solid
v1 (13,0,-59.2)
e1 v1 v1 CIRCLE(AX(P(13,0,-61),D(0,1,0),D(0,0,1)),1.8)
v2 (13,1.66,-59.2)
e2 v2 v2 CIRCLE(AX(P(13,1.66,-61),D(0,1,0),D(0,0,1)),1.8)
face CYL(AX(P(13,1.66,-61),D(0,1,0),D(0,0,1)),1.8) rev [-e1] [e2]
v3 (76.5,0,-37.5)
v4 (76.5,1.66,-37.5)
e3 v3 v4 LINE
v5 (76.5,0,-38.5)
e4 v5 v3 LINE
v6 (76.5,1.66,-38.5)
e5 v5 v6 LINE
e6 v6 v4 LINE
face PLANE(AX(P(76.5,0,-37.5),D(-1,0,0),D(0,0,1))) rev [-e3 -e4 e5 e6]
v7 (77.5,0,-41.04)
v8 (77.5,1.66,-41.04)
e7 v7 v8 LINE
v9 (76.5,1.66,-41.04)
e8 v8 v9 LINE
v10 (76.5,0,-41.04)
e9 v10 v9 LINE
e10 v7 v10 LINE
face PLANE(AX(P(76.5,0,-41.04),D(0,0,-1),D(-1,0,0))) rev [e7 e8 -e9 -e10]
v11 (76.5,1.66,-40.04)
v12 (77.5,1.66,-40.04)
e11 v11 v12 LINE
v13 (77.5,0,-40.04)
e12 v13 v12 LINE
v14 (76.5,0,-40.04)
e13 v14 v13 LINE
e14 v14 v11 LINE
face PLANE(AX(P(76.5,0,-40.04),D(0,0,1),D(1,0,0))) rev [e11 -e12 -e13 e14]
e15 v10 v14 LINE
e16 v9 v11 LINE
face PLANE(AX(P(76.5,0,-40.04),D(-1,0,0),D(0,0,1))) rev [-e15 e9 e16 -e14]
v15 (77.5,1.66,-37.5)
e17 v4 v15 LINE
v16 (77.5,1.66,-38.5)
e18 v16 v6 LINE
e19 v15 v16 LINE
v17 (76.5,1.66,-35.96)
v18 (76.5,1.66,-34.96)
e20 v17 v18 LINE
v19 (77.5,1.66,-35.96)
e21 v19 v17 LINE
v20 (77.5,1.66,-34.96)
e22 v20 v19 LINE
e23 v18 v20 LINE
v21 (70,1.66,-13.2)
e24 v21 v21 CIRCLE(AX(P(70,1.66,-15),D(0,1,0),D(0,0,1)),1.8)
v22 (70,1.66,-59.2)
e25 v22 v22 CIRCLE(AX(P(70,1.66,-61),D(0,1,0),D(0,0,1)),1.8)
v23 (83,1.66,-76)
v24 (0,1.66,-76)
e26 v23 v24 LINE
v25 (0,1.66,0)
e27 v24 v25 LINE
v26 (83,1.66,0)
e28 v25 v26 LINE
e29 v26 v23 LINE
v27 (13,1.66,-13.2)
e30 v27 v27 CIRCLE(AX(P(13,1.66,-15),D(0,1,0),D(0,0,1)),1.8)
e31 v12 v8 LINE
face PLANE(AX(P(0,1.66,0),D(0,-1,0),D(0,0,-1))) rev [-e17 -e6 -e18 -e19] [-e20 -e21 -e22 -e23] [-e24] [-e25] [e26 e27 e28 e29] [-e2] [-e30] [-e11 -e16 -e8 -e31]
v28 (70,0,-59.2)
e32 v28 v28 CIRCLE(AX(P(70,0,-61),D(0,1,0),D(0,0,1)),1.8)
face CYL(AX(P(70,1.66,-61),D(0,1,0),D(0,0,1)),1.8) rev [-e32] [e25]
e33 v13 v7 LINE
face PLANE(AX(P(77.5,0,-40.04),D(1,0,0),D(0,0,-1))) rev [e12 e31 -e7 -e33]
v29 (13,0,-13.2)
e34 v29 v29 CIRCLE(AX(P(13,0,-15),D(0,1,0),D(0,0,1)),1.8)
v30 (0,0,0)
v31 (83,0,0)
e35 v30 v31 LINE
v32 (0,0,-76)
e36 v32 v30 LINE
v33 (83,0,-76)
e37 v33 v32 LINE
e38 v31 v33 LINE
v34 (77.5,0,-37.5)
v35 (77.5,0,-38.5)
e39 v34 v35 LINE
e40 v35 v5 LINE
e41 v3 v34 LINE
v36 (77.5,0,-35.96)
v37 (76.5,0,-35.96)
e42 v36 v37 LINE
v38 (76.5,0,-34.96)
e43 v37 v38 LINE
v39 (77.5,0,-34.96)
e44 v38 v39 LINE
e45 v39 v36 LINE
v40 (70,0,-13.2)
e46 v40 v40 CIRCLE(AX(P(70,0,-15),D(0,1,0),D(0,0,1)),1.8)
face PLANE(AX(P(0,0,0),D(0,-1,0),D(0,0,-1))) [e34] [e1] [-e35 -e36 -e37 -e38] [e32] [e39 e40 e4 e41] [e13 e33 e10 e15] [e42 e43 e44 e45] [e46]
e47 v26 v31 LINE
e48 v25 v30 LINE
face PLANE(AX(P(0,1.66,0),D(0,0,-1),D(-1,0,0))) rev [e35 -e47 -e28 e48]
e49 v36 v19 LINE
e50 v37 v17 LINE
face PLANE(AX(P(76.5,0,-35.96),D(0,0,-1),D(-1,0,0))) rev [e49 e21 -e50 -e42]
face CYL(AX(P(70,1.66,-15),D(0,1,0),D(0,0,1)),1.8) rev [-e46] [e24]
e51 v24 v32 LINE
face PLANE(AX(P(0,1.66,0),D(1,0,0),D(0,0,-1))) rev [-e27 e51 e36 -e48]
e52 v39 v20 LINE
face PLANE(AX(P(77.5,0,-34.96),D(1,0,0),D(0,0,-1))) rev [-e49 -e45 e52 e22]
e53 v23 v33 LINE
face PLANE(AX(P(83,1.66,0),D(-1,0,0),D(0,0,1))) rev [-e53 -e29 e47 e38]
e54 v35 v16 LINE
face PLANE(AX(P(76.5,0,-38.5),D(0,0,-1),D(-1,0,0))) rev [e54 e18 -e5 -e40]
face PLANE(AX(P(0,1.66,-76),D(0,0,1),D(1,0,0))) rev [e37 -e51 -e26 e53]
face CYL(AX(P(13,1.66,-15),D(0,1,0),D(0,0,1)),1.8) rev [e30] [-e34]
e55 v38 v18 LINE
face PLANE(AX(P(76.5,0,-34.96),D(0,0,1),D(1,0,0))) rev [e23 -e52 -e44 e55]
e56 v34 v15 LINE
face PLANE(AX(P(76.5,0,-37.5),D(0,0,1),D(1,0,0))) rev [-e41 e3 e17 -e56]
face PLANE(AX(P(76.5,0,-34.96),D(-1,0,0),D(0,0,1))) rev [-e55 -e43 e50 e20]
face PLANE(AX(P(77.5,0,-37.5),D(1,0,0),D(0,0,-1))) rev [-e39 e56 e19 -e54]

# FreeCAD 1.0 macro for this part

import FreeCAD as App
import Part
import Sketcher
from FreeCAD import Vector


def add_polygon(sketch, points):
    """Adds a closed chain of lines whose ends are joined by coincident constraints."""
    first, n = sketch.GeometryCount, len(points)
    for a, b in zip(points, points[1:] + points[:1]):
        sketch.addGeometry(Part.LineSegment(App.Vector(*a, 0), App.Vector(*b, 0)), False)
    for i in range(n):
        sketch.addConstraint(Sketcher.Constraint("Coincident", first + i, 2, first + (i + 1) % n, 1))

doc = App.newDocument("Part")
params = doc.addObject("Spreadsheet::Sheet", "Params")
for row, (alias, value) in enumerate([
    ("sketch1_width", "83 mm"),
    ("sketch1_height", "76 mm"),
    ("pad1_length", "1.66 mm"),
    ("sketch2_width", "1 mm"),
    ("sketch3_diameter", "3.6 mm"),
    ("hole_diameter", "3.6 mm"),
], start=1):
    params.set(f"A{row}", alias)
    params.set(f"B{row}", "=" + value)
    params.setAlias(f"B{row}", alias)

body = doc.addObject("PartDesign::Body", "Body")

# Sketch on XZ plane
sketch1 = doc.addObject("Sketcher::SketchObject", "Sketch")
body.addObject(sketch1)
sketch1.AttachmentSupport = (doc.XZ_Plane, [""])
sketch1.MapMode = "FlatFace"
add_polygon(sketch1, [(0, -76), (0, 0), (83, 0), (83, -76)])  # lines 0-3
sketch1.addConstraint([
    Sketcher.Constraint("Vertical", 0),
    Sketcher.Constraint("Horizontal", 1),
    Sketcher.Constraint("Vertical", 2),
    Sketcher.Constraint("Horizontal", 3),
    Sketcher.Constraint("Coincident", 0, 2, -1, 1),
    Sketcher.Constraint("DistanceX", 1, 1, 1, 2, 83.0),
    Sketcher.Constraint("DistanceY", 0, 1, 0, 2, 76.0),
])
sketch1.setExpression("Constraints[9]", "Params.sketch1_width")
sketch1.setExpression("Constraints[10]", "Params.sketch1_height")
pad1 = doc.addObject("PartDesign::Pad", "Pad")
body.addObject(pad1)
pad1.Profile = sketch1
pad1.setExpression("Length", "Params.pad1_length")
pad1.Reversed = True

# Sketch on XZ plane
sketch2 = doc.addObject("Sketcher::SketchObject", "Sketch001")
body.addObject(sketch2)
sketch2.AttachmentSupport = (doc.XZ_Plane, [""])
sketch2.MapMode = "FlatFace"
sketch2.AttachmentOffset = App.Placement(Vector(0, 0, -1.66), App.Rotation())
add_polygon(sketch2, [(76.5, -38.5), (76.5, -37.5), (77.5, -37.5), (77.5, -38.5)])  # lines 0-3
add_polygon(sketch2, [(76.5, -41), (76.5, -40), (77.5, -40), (77.5, -41)])  # lines 4-7
add_polygon(sketch2, [(76.5, -36), (76.5, -35), (77.5, -35), (77.5, -36)])  # lines 8-11
sketch2.addConstraint([
    Sketcher.Constraint("Vertical", 0),
    Sketcher.Constraint("Horizontal", 1),
    Sketcher.Constraint("Vertical", 2),
    Sketcher.Constraint("Horizontal", 3),
    Sketcher.Constraint("Vertical", 4),
    Sketcher.Constraint("Horizontal", 5),
    Sketcher.Constraint("Vertical", 6),
    Sketcher.Constraint("Horizontal", 7),
    Sketcher.Constraint("Vertical", 8),
    Sketcher.Constraint("Horizontal", 9),
    Sketcher.Constraint("Vertical", 10),
    Sketcher.Constraint("Horizontal", 11),
    Sketcher.Constraint("Vertical", 3, 2, 4, 2),
    Sketcher.Constraint("Vertical", 2, 2, 5, 2),
    Sketcher.Constraint("Vertical", 7, 2, 8, 2),
    Sketcher.Constraint("Vertical", 6, 2, 9, 2),
    Sketcher.Constraint("Equal", 11, 0),
    Sketcher.Constraint("Equal", 2, 4),
    Sketcher.Constraint("Equal", 6, 8),
    Sketcher.Constraint("DistanceX", 1, 1, 1, 2, 1.0),
    Sketcher.Constraint("DistanceX", -1, 1, 0, 2, 76.5),
    Sketcher.Constraint("DistanceY", 0, 2, -1, 1, 37.5),
    Sketcher.Constraint("DistanceY", 4, 2, -1, 1, 40.04),
    Sketcher.Constraint("DistanceY", 8, 2, -1, 1, 34.96),
])
sketch2.setExpression("Constraints[31]", "Params.sketch2_width")
pocket1 = doc.addObject("PartDesign::Pocket", "Pocket")
body.addObject(pocket1)
pocket1.Profile = sketch2
pocket1.Type = "ThroughAll"
pocket1.Reversed = True

# Sketch on XZ plane
sketch3 = doc.addObject("Sketcher::SketchObject", "Sketch002")
body.addObject(sketch3)
sketch3.AttachmentSupport = (doc.XZ_Plane, [""])
sketch3.MapMode = "FlatFace"
sketch3.AttachmentOffset = App.Placement(Vector(0, 0, -1.66), App.Rotation())
sketch3.addGeometry([
    Part.Circle(Vector(13, -61, 0), Vector(0, 0, 1), 1.8),
    Part.Circle(Vector(70, -61, 0), Vector(0, 0, 1), 1.8),
    Part.Circle(Vector(70, -15, 0), Vector(0, 0, 1), 1.8),
    Part.Circle(Vector(13, -15, 0), Vector(0, 0, 1), 1.8),
], False)
sketch3.addConstraint([
    Sketcher.Constraint("Equal", 0, 1),
    Sketcher.Constraint("Equal", 1, 2),
    Sketcher.Constraint("Equal", 2, 3),
    Sketcher.Constraint("Horizontal", 0, 3, 1, 3),
    Sketcher.Constraint("Horizontal", 2, 3, 3, 3),
    Sketcher.Constraint("Vertical", 1, 3, 2, 3),
    Sketcher.Constraint("Vertical", 0, 3, 3, 3),
    Sketcher.Constraint("Diameter", 0, 3.6),
    Sketcher.Constraint("DistanceX", -1, 1, 0, 3, 13.0),
    Sketcher.Constraint("DistanceY", 0, 3, -1, 1, 61.0),
    Sketcher.Constraint("DistanceX", -1, 1, 1, 3, 70.0),
    Sketcher.Constraint("DistanceY", 2, 3, -1, 1, 15.0),
])
sketch3.setExpression("Constraints[7]", "Params.sketch3_diameter")
doc.recompute()
hole = doc.addObject("PartDesign::Hole", "Hole")
body.addObject(hole)
hole.Profile = sketch3
hole.ThreadType = "None"
hole.setExpression("Diameter", "Params.hole_diameter")
hole.DepthType = "ThroughAll"
hole.Reversed = True

doc.recompute()
